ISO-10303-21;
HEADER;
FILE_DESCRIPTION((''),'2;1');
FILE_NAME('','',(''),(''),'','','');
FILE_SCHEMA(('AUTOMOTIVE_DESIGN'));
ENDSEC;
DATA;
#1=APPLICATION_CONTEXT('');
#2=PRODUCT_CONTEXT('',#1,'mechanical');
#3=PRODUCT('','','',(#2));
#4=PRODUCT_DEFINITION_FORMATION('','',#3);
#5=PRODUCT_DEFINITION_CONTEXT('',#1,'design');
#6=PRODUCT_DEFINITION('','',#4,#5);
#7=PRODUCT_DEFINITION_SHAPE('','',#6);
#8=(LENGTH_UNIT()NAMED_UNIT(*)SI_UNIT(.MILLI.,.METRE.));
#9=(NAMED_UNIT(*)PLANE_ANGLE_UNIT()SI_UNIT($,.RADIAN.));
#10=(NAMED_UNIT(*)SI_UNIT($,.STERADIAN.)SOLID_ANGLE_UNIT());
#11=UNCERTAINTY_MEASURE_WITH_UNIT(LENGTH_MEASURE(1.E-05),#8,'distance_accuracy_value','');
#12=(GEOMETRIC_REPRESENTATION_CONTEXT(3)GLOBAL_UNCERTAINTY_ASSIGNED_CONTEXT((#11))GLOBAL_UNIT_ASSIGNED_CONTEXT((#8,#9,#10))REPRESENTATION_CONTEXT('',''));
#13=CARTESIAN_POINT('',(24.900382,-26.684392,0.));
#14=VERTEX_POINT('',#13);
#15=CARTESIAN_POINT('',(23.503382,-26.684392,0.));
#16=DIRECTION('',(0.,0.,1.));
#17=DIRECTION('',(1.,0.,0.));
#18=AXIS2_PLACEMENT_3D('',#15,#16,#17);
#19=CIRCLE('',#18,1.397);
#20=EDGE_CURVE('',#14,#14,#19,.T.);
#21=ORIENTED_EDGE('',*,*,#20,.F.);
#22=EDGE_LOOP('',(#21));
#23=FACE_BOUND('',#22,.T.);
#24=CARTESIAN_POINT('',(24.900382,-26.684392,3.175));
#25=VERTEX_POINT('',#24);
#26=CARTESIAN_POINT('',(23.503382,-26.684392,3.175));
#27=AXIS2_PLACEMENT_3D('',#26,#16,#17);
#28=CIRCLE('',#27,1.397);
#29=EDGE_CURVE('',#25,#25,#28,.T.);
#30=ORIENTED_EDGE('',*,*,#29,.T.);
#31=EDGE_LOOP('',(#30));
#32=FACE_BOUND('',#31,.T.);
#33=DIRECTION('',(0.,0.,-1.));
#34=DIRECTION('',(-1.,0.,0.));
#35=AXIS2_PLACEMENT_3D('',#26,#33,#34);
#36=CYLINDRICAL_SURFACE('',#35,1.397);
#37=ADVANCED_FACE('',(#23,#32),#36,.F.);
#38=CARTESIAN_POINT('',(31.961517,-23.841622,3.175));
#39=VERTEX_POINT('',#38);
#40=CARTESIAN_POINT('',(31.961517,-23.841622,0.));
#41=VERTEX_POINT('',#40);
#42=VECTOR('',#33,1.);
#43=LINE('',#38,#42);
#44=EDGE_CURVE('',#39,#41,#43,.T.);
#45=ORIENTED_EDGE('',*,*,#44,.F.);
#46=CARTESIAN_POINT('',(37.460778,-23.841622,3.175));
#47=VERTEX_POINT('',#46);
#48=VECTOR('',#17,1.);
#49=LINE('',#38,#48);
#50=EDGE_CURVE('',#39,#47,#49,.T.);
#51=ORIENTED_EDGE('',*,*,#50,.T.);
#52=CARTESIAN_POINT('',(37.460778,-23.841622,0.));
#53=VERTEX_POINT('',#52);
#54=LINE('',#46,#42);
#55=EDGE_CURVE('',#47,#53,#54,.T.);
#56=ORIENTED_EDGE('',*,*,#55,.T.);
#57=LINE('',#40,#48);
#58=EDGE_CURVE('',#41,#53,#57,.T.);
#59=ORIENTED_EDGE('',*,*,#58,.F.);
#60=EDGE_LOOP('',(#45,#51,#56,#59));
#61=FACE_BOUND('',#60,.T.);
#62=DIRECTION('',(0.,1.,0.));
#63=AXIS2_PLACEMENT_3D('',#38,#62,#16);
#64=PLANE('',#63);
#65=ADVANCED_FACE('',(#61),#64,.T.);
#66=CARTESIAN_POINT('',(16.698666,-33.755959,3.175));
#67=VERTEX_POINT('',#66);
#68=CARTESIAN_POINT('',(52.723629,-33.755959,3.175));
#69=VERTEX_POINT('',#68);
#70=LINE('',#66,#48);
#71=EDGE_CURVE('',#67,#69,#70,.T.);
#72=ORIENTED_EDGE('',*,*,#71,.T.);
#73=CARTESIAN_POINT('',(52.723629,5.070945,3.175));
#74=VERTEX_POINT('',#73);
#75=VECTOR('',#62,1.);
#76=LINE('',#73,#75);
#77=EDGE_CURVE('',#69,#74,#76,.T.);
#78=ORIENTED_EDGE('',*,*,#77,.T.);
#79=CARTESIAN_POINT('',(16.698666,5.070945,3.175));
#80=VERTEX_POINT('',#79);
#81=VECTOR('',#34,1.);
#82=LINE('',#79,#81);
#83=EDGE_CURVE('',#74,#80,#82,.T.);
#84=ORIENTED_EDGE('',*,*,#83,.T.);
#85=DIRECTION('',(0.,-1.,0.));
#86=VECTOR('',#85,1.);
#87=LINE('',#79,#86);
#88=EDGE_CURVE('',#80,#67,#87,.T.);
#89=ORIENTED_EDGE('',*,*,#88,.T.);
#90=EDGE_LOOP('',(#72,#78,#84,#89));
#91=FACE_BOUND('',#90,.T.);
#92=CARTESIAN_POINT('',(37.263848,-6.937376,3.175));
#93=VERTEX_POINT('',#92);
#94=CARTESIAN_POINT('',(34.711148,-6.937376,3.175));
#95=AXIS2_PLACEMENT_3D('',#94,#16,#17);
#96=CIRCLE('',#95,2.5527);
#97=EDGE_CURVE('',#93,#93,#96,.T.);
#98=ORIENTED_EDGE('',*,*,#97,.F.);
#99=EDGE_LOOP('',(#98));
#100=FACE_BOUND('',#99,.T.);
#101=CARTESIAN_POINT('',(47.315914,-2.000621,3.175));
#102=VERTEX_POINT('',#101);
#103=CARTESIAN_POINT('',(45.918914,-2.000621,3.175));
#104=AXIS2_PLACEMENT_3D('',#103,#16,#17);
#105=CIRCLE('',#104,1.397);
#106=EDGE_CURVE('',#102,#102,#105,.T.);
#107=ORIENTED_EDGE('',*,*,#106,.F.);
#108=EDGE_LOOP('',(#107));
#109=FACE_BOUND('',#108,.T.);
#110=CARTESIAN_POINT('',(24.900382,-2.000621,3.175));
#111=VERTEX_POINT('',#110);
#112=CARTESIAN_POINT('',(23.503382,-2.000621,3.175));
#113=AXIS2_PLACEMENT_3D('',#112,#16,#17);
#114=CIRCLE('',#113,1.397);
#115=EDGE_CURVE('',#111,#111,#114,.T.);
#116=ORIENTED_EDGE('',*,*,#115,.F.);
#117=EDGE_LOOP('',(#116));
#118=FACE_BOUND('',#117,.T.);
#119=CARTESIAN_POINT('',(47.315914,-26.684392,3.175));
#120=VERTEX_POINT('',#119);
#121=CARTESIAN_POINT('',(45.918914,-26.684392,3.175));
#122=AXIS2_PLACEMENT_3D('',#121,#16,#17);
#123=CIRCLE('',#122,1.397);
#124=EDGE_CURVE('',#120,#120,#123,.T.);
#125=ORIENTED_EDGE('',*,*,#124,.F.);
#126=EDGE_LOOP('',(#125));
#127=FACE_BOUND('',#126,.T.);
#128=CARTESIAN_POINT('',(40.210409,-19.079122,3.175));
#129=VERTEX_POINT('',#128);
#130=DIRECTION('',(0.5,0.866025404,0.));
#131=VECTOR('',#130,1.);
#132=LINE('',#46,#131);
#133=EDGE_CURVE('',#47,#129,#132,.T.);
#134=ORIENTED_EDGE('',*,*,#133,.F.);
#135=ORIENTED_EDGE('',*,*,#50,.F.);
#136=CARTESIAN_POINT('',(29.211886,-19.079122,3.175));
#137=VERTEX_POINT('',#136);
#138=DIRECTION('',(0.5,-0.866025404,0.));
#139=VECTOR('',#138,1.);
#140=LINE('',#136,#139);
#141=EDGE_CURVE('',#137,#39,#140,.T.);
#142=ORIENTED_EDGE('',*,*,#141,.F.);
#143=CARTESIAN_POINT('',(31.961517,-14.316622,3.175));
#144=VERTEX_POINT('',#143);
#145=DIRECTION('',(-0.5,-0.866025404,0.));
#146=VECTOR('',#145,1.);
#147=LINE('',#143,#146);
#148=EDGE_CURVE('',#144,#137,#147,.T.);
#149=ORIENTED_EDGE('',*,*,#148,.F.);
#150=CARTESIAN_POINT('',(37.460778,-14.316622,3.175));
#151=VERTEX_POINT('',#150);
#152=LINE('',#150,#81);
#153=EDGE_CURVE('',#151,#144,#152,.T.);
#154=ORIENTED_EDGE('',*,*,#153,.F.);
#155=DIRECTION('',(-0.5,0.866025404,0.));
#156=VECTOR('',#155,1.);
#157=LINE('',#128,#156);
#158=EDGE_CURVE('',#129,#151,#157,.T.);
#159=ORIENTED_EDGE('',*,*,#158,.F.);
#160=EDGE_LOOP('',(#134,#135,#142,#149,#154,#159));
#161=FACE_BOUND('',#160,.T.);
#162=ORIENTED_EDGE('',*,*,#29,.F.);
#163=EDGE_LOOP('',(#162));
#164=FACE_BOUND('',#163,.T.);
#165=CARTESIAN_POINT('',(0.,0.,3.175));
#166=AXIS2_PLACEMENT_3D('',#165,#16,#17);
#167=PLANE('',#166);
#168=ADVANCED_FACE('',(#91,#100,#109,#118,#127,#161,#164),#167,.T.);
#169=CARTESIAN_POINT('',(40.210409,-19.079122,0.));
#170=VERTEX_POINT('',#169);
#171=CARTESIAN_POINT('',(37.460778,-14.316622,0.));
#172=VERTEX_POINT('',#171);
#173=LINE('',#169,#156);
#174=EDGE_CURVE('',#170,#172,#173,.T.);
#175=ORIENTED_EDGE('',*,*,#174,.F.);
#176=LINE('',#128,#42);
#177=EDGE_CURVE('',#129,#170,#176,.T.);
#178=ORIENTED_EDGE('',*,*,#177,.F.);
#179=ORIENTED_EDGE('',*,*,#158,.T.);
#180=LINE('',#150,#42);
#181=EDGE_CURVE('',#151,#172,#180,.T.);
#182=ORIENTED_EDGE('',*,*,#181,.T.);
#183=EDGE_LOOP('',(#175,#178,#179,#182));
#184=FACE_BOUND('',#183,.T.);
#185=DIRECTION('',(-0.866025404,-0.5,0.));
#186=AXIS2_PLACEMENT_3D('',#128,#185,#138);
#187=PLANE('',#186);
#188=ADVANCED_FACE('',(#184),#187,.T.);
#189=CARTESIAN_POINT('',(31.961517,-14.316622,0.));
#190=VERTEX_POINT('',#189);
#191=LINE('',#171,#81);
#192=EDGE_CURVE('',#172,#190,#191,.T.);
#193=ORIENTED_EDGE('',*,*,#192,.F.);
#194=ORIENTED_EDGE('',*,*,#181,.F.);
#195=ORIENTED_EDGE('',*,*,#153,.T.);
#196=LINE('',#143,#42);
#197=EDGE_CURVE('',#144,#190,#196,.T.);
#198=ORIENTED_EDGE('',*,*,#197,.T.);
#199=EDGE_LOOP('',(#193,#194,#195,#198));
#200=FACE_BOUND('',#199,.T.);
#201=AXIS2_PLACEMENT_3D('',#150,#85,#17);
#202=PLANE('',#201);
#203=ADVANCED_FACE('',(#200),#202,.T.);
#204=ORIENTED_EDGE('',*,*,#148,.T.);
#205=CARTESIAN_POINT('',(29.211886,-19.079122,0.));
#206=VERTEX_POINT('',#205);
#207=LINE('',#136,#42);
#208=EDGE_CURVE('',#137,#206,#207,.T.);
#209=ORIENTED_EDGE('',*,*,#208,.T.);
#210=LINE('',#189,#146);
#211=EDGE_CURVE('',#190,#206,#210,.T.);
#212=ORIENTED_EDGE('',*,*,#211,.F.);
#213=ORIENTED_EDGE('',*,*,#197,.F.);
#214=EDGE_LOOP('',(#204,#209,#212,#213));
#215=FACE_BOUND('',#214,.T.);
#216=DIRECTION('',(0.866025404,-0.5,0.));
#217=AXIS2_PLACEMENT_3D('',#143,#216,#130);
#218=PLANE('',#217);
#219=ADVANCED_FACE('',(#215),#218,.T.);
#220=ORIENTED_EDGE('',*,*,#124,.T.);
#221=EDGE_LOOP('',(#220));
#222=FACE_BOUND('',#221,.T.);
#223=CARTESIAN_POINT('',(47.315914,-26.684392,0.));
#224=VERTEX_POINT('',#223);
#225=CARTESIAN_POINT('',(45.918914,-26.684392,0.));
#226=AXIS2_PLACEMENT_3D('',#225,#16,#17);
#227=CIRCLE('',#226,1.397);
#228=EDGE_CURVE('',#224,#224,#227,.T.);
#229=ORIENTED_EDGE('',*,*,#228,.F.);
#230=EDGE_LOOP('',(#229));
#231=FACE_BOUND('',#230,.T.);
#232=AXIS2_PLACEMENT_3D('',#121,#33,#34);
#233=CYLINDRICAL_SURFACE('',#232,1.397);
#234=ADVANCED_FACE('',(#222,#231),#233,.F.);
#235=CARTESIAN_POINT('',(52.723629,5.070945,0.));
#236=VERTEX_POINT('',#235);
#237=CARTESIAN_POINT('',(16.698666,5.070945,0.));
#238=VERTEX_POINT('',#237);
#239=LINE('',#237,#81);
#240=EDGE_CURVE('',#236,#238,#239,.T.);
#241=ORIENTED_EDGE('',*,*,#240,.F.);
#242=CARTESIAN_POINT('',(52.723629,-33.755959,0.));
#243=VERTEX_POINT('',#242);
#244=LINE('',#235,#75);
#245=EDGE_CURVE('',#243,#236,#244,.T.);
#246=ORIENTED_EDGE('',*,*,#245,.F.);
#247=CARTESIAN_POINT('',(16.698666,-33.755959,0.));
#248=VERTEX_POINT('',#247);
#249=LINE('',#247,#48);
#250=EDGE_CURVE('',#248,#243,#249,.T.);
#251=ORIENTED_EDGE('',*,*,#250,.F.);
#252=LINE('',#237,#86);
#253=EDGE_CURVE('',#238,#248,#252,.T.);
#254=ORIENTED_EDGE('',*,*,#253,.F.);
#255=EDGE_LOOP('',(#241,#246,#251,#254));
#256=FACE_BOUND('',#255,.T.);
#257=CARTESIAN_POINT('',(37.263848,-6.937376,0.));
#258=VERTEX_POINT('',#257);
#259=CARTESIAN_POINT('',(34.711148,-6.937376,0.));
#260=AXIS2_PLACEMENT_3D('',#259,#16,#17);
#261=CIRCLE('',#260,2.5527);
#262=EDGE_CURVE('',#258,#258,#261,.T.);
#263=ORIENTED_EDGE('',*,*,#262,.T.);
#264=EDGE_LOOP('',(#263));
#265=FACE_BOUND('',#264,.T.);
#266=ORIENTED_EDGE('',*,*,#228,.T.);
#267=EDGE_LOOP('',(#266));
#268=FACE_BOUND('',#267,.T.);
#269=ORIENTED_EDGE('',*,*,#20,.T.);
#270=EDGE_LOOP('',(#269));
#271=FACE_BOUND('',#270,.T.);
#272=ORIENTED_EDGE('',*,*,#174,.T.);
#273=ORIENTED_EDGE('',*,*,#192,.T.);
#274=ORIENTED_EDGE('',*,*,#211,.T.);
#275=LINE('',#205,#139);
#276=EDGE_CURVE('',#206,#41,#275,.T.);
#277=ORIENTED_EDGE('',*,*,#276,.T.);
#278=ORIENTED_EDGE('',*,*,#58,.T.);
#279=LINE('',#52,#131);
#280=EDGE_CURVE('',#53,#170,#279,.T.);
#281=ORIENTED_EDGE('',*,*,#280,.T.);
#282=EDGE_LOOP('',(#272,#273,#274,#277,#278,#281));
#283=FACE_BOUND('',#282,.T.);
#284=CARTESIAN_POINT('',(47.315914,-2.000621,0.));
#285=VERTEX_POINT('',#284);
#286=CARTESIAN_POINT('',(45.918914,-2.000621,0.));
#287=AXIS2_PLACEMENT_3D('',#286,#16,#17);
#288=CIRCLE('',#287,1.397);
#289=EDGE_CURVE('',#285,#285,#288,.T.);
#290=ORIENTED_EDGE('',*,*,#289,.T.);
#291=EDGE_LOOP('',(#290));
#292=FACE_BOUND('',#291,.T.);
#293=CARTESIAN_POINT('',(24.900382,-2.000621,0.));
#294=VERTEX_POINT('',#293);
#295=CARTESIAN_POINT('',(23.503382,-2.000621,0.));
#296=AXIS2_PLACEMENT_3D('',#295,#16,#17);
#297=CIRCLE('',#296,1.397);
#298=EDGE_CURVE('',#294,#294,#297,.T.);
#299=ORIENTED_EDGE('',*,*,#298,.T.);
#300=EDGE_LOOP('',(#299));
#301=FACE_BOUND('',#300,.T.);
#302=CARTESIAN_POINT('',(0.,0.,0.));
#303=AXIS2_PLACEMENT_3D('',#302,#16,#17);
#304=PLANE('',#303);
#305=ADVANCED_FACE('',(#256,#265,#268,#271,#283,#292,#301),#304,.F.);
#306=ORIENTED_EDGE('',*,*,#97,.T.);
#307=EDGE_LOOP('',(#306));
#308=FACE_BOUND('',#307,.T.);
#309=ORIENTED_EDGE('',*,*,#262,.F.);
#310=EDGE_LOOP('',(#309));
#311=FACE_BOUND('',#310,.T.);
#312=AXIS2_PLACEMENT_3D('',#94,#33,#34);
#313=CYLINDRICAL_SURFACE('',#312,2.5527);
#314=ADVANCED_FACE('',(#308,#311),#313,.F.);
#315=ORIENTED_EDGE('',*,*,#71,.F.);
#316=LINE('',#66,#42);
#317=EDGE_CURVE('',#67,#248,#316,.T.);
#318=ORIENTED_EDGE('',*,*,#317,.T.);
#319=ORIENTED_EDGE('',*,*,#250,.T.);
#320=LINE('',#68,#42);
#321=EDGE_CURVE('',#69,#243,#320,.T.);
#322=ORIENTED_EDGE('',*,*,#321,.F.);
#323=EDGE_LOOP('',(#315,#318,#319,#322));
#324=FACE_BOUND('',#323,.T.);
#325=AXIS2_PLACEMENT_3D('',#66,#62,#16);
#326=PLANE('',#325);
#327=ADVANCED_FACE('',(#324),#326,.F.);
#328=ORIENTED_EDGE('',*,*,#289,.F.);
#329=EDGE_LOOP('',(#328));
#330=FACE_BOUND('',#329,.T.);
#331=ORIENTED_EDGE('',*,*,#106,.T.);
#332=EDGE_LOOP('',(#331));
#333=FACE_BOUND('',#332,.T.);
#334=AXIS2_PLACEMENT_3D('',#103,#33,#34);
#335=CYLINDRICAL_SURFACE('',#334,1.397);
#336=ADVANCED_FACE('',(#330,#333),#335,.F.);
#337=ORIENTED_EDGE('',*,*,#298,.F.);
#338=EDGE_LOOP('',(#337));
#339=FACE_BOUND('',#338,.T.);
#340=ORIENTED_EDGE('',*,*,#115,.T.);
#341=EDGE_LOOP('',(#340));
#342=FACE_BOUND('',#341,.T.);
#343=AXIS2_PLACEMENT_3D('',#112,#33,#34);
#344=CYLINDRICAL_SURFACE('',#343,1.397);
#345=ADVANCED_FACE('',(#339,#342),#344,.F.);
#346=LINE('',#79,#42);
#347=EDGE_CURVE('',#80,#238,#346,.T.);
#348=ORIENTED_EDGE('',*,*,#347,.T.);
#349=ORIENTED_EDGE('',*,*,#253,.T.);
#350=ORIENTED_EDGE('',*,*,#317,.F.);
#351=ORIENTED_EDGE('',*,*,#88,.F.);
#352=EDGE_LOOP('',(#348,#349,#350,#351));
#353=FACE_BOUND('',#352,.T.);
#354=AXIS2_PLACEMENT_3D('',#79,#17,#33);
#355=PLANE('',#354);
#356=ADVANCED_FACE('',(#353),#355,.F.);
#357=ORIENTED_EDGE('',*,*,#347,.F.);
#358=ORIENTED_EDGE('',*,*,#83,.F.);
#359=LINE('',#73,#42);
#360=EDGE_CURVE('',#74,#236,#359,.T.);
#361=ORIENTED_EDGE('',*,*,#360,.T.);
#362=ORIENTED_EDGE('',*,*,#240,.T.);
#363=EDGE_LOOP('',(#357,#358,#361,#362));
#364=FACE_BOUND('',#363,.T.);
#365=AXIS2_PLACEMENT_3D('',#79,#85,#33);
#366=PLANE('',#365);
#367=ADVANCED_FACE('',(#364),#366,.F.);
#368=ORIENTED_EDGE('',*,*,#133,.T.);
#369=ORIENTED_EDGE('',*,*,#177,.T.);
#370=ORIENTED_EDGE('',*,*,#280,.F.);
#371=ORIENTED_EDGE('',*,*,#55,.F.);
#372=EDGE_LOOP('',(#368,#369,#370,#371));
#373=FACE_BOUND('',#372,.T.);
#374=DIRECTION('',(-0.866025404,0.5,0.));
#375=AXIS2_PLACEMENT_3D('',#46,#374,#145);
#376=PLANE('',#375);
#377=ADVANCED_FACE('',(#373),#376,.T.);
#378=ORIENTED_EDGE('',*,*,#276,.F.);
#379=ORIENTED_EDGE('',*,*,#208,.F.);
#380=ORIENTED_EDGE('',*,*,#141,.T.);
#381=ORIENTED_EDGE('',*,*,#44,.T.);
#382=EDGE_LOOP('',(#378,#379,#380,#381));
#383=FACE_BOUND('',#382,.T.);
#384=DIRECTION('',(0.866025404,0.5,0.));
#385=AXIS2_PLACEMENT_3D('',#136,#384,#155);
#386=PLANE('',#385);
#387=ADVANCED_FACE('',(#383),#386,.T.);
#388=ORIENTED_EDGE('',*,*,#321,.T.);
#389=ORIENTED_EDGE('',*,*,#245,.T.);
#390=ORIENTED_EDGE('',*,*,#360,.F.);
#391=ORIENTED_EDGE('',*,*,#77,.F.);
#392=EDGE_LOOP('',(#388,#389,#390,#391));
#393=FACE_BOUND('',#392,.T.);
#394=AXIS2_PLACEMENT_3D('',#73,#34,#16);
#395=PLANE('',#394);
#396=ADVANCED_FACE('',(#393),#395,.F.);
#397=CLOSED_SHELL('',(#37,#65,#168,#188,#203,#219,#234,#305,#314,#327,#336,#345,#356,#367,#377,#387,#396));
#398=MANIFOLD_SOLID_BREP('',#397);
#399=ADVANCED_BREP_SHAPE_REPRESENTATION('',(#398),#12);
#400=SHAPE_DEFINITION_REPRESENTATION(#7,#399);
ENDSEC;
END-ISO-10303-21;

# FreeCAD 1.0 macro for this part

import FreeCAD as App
import Part
import Sketcher
from FreeCAD import Vector
Q = App.Units.Quantity

doc = App.newDocument("Part")
params = doc.addObject("Spreadsheet::Sheet", "Params")
for row, (alias, value) in enumerate([
    ("sketch1_diameter", "0.11 in"),
    ("sketch1_diameter2", "0.201 in"),
    ("pad1_length", "0.125 in"),
], start=1):
    params.set(f"A{row}", alias)
    params.set(f"B{row}", "=" + value)
    params.setAlias(f"B{row}", alias)

body = doc.addObject("PartDesign::Body", "Body")

# Sketch on XY plane
sketch1 = body.newObject("Sketcher::SketchObject", "Sketch")
sketch1.AttachmentSupport = (doc.getObject("XY_Plane"), [""])
sketch1.MapMode = "FlatFace"
sketch1.addGeometry([
    Part.LineSegment(Vector(16.7, 5.1, 0), Vector(16.7, -33.8, 0)),  # 0
    Part.LineSegment(Vector(16.7, -33.8, 0), Vector(52.7, -33.8, 0)),  # 1
    Part.LineSegment(Vector(52.7, -33.8, 0), Vector(52.7, 5.1, 0)),  # 2
    Part.LineSegment(Vector(52.7, 5.1, 0), Vector(16.7, 5.1, 0)),  # 3
    Part.Circle(Vector(23.5, -26.7, 0), Vector(0, 0, 1), 1.4),  # 4
    Part.Circle(Vector(45.9, -26.7, 0), Vector(0, 0, 1), 1.4),  # 5
    Part.LineSegment(Vector(37.5, -14.3, 0), Vector(40.2, -19.1, 0)),  # 6
    Part.LineSegment(Vector(40.2, -19.1, 0), Vector(37.5, -23.8, 0)),  # 7
    Part.LineSegment(Vector(37.5, -23.8, 0), Vector(32, -23.8, 0)),  # 8
    Part.LineSegment(Vector(32, -23.8, 0), Vector(29.2, -19.1, 0)),  # 9
    Part.LineSegment(Vector(29.2, -19.1, 0), Vector(32, -14.3, 0)),  # 10
    Part.LineSegment(Vector(32, -14.3, 0), Vector(37.5, -14.3, 0)),  # 11
    Part.Circle(Vector(23.5, -2, 0), Vector(0, 0, 1), 1.4),  # 12
    Part.Circle(Vector(34.7, -6.9, 0), Vector(0, 0, 1), 2.6),  # 13
    Part.Circle(Vector(45.9, -2, 0), Vector(0, 0, 1), 1.4),  # 14
], False)
sketch1.addConstraint([
    Sketcher.Constraint("Coincident", 0, 2, 1, 1),
    Sketcher.Constraint("Coincident", 1, 2, 2, 1),
    Sketcher.Constraint("Coincident", 2, 2, 3, 1),
    Sketcher.Constraint("Coincident", 3, 2, 0, 1),
    Sketcher.Constraint("Coincident", 6, 2, 7, 1),
    Sketcher.Constraint("Coincident", 7, 2, 8, 1),
    Sketcher.Constraint("Coincident", 8, 2, 9, 1),
    Sketcher.Constraint("Coincident", 9, 2, 10, 1),
    Sketcher.Constraint("Coincident", 10, 2, 11, 1),
    Sketcher.Constraint("Coincident", 11, 2, 6, 1),
    Sketcher.Constraint("Vertical", 0),
    Sketcher.Constraint("Horizontal", 1),
    Sketcher.Constraint("Vertical", 2),
    Sketcher.Constraint("Horizontal", 3),
    Sketcher.Constraint("Horizontal", 8),
    Sketcher.Constraint("Horizontal", 11),
    Sketcher.Constraint("Equal", 4, 5),
    Sketcher.Constraint("Equal", 5, 12),
    Sketcher.Constraint("Equal", 12, 14),
    Sketcher.Constraint("Parallel", 6, 9),
    Sketcher.Constraint("Parallel", 7, 10),
    Sketcher.Constraint("Horizontal", 4, 3, 5, 3),
    Sketcher.Constraint("Horizontal", 12, 3, 14, 3),
    Sketcher.Constraint("Horizontal", 6, 2, 9, 2),
    Sketcher.Constraint("Vertical", 4, 3, 12, 3),
    Sketcher.Constraint("Vertical", 5, 3, 14, 3),
    Sketcher.Constraint("Vertical", 8, 2, 10, 2),
    Sketcher.Constraint("Vertical", 7, 2, 11, 2),
    Sketcher.Constraint("Diameter", 4, Q("0.11 in")),
    Sketcher.Constraint("Diameter", 13, Q("0.201 in")),
    Sketcher.Constraint("Angle", 6, Q("-60 deg")),
    Sketcher.Constraint("DistanceY", 7, 2, 6, 2, Q("0.1875 in")),
    Sketcher.Constraint("DistanceX", 8, 2, 8, 1, Q("5.499261 mm")),
    Sketcher.Constraint("DistanceY", 6, 2, 14, 3, Q("17.078501 mm")),
    Sketcher.Constraint("DistanceX", 1, 1, 1, 2, Q("36.024963 mm")),
    Sketcher.Constraint("DistanceY", 0, 2, 0, 1, Q("38.826904 mm")),
    Sketcher.Constraint("DistanceX", -1, 1, 4, 3, Q("23.503382 mm")),
    Sketcher.Constraint("DistanceY", 12, 3, -1, 1, Q("2.000621 mm")),
    Sketcher.Constraint("DistanceY", 0, 2, -1, 1, Q("33.755959 mm")),
    Sketcher.Constraint("DistanceX", -1, 1, 1, 2, Q("52.723629 mm")),
    Sketcher.Constraint("DistanceX", -1, 1, 6, 2, Q("40.210409 mm")),
    Sketcher.Constraint("DistanceY", 4, 3, 12, 3, Q("24.683771 mm")),
    Sketcher.Constraint("DistanceX", 0, 2, 13, 3, Q("18.012481 mm")),
    Sketcher.Constraint("DistanceY", 13, 3, 2, 2, Q("12.008321 mm")),
    Sketcher.Constraint("DistanceX", -1, 1, 5, 3, Q("45.918914 mm")),
])
sketch1.setExpression("Constraints[28]", "Params.sketch1_diameter")
sketch1.setExpression("Constraints[29]", "Params.sketch1_diameter2")
pad1 = body.newObject("PartDesign::Pad", "Pad")
pad1.Profile = sketch1
pad1.setExpression("Length", "Params.pad1_length")

doc.recompute()
